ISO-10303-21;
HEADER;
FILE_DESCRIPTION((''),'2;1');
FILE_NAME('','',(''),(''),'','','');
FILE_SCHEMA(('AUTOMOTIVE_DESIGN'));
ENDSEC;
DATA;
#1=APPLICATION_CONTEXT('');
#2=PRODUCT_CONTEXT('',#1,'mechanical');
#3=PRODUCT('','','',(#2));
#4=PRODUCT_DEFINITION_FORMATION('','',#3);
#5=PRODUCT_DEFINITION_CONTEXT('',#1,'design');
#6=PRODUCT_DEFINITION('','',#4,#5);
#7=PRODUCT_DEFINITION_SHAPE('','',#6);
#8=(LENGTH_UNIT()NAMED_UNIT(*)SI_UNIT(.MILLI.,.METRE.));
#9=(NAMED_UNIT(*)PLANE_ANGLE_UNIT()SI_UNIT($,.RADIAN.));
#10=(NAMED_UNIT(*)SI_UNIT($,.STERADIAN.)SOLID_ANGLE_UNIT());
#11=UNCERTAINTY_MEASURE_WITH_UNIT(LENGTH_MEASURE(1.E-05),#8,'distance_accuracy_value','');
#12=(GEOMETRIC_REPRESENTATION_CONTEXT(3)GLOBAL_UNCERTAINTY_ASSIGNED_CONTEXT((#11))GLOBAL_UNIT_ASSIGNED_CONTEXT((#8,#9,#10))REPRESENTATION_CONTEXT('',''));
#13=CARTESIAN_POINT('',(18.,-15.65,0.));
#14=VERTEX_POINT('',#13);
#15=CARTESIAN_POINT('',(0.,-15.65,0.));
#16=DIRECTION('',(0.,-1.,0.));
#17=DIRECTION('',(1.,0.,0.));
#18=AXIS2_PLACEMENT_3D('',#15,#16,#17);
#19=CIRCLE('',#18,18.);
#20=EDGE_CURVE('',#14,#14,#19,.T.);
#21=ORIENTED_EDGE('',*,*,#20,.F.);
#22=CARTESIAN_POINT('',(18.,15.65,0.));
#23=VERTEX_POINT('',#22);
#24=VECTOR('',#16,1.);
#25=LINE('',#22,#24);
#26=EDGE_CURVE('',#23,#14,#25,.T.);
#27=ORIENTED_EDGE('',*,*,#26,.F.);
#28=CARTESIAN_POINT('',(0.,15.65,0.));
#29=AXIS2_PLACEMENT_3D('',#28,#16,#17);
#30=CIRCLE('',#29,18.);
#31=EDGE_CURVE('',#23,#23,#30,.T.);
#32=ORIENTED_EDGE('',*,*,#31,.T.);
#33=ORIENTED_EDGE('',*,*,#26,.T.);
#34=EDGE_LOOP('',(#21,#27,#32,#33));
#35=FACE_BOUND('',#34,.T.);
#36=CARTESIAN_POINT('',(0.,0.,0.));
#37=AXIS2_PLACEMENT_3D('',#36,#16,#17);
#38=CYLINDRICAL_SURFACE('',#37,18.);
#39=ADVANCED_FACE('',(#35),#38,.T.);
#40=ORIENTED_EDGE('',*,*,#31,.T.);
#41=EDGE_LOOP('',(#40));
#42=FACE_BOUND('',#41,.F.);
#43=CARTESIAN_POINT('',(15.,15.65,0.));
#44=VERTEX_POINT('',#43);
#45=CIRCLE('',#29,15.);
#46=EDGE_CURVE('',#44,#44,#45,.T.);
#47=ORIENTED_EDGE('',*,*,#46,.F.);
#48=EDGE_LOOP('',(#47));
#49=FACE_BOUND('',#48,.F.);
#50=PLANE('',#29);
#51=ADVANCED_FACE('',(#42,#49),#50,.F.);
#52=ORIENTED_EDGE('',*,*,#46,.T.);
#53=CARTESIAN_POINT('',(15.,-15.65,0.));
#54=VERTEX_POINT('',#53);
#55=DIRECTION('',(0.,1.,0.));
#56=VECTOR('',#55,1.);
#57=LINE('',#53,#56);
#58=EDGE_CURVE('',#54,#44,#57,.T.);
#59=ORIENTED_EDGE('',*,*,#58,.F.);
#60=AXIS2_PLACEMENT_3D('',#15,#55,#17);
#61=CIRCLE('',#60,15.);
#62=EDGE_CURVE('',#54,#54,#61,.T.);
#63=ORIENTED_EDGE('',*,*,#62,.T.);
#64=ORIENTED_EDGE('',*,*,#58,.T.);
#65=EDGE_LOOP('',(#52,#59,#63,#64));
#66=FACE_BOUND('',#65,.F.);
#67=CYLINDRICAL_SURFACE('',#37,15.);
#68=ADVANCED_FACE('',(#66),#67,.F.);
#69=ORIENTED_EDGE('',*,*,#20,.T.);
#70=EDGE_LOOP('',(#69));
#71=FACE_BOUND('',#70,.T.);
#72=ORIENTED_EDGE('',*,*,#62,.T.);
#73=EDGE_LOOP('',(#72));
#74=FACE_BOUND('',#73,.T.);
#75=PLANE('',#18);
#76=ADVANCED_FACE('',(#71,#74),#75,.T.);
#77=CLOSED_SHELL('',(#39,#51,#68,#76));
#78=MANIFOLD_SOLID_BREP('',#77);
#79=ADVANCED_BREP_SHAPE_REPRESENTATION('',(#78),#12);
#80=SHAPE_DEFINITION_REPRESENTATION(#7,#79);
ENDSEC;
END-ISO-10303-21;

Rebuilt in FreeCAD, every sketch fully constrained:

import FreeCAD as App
import Part
import Sketcher

V = App.Vector
Q = App.Units.Quantity

doc = App.newDocument("Part")
body = doc.addObject("PartDesign::Body", "Body")

sketch1 = doc.addObject("Sketcher::SketchObject", "Sketch")
body.addObject(sketch1)
sketch1.AttachmentSupport = (doc.XZ_Plane, [""])
sketch1.MapMode = "FlatFace"
sketch1.addGeometry(Part.Circle(V(0, 0, 0), V(0, 0, 1), 18), False)
sketch1.addConstraint(Sketcher.Constraint("Coincident", 0, 3, -1, 1))
sketch1.addConstraint(Sketcher.Constraint("Diameter", 0, Q("36 mm")))
pad1 = doc.addObject("PartDesign::Pad", "Pad")
body.addObject(pad1)
pad1.Profile = sketch1
pad1.Length = 31.3
pad1.Midplane = True

sketch2 = doc.addObject("Sketcher::SketchObject", "Sketch001")
body.addObject(sketch2)
sketch2.AttachmentSupport = (doc.XZ_Plane, [""])
sketch2.MapMode = "FlatFace"
sketch2.addGeometry(Part.Circle(V(0, 0, 0), V(0, 0, 1), 15), False)
sketch2.addConstraint(Sketcher.Constraint("Coincident", 0, 3, -1, 1))
sketch2.addConstraint(Sketcher.Constraint("Diameter", 0, Q("30 mm")))
pocket1 = doc.addObject("PartDesign::Pocket", "Pocket")
body.addObject(pocket1)
pocket1.Profile = sketch2
pocket1.Type = "ThroughAll"
pocket1.Midplane = True

doc.recompute()
